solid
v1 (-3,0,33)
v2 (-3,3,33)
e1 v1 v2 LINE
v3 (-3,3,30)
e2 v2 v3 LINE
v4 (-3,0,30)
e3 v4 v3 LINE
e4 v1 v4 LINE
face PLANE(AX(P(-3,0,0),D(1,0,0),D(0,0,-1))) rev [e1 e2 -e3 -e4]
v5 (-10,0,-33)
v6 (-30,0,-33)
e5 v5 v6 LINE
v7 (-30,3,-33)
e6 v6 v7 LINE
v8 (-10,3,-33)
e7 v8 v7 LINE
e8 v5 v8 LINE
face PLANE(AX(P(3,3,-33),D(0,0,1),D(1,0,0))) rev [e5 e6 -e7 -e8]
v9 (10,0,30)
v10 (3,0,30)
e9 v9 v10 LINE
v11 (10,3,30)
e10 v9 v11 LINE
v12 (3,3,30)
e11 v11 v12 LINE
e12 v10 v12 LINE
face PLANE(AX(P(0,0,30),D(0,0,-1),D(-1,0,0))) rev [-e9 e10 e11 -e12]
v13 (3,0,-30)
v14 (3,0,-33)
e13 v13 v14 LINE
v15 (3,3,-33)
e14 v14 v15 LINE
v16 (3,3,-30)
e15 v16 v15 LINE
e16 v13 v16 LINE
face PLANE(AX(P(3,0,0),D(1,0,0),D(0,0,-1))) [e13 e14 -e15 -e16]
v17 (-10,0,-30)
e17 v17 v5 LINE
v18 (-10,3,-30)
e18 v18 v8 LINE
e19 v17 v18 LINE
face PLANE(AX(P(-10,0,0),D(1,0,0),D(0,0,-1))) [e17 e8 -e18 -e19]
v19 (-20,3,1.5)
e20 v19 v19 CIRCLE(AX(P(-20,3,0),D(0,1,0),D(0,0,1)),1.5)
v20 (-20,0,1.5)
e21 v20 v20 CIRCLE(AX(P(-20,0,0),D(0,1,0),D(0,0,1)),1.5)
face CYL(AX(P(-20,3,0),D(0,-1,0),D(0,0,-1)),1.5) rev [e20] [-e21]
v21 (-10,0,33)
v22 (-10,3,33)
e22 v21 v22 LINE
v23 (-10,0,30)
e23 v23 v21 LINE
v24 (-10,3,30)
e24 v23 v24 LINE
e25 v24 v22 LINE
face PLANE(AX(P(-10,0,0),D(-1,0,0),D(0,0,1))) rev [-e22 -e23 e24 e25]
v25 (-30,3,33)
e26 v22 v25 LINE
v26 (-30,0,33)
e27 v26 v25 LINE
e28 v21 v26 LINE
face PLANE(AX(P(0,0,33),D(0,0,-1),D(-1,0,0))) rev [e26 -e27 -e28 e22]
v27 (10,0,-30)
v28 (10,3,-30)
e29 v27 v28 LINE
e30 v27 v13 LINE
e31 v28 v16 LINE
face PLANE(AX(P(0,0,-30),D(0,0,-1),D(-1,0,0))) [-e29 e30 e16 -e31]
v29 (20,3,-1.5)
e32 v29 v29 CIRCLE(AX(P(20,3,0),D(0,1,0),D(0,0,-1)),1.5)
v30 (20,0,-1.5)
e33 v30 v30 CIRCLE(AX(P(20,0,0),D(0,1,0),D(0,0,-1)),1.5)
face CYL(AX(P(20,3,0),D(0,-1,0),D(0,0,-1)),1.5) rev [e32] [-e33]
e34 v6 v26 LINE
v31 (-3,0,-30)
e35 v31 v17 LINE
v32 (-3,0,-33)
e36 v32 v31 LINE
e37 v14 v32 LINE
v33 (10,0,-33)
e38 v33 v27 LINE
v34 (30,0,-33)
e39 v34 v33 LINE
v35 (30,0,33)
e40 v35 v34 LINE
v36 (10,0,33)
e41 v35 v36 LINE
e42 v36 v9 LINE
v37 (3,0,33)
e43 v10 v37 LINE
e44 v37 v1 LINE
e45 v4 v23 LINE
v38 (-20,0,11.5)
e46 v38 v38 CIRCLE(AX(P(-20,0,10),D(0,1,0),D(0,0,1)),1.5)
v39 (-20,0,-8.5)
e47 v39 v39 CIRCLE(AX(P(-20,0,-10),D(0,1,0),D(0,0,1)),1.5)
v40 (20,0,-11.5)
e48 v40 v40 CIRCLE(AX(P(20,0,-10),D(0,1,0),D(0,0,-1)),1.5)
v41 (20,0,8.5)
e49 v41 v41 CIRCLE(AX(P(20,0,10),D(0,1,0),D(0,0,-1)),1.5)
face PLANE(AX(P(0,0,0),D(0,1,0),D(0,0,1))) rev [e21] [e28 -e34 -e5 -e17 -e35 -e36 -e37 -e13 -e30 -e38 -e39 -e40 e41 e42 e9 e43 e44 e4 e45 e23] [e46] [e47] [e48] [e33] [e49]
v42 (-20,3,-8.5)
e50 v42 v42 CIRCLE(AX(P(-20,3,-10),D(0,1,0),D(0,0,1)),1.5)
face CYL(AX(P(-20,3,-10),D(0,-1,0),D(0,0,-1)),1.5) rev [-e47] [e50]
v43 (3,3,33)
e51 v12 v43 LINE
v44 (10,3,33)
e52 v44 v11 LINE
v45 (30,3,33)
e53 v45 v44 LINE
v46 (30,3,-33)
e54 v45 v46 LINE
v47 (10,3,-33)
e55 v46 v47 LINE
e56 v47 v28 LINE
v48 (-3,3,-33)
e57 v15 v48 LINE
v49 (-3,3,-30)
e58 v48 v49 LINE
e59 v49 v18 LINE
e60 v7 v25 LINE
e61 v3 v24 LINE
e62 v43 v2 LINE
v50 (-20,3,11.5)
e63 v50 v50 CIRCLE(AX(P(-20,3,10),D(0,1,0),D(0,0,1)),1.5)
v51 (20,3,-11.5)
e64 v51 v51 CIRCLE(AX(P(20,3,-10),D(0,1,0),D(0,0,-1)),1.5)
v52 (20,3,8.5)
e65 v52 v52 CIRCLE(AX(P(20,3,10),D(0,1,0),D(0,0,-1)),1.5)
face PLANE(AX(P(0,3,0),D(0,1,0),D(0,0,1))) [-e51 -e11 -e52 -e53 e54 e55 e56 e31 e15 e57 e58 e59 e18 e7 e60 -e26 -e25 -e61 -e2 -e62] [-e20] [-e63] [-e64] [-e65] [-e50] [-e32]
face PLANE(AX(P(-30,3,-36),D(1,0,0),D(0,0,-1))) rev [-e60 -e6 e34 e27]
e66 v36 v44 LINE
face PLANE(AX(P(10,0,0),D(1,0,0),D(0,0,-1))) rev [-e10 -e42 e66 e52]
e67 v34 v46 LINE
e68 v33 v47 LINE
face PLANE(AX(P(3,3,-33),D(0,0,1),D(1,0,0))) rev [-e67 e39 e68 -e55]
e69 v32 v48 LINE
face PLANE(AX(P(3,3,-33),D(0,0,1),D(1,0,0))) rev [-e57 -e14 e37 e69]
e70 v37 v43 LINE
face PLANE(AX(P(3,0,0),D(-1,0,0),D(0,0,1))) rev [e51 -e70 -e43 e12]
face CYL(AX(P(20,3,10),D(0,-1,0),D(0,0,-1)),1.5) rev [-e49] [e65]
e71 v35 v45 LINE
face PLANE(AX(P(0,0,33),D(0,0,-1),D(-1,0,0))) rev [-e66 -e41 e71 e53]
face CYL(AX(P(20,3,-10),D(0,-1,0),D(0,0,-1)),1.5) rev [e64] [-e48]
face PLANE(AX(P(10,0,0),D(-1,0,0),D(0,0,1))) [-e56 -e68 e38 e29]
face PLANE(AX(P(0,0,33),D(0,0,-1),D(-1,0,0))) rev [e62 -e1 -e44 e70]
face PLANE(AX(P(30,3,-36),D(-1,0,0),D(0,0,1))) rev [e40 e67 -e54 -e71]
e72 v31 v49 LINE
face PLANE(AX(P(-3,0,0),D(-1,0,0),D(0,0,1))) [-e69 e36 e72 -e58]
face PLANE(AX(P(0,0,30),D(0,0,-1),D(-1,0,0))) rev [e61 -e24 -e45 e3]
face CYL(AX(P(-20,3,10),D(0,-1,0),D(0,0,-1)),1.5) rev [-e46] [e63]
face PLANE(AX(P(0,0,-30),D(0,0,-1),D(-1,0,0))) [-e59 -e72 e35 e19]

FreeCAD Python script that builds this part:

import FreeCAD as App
import Part
import Sketcher
Q = App.Units.Quantity


def add_polygon(sketch, points):
    """Adds a closed chain of lines whose ends are joined by coincident constraints."""
    first, n = sketch.GeometryCount, len(points)
    for a, b in zip(points, points[1:] + points[:1]):
        sketch.addGeometry(Part.LineSegment(App.Vector(*a, 0), App.Vector(*b, 0)), False)
    for i in range(n):
        sketch.addConstraint(Sketcher.Constraint("Coincident", first + i, 2, first + (i + 1) % n, 1))

doc = App.newDocument("Part")
body = doc.addObject("PartDesign::Body", "Body")

# Sketch on XZ plane
sketch1 = body.newObject("Sketcher::SketchObject", "Sketch")
sketch1.AttachmentSupport = (doc.getObject("XZ_Plane"), [""])
sketch1.MapMode = "FlatFace"
add_polygon(sketch1, [(3, -36), (-3, -36), (-3, -33), (-10, -33), (-10, -36), (-30, -36), (-30, 36), (-10, 36), (-10, 33), (-3, 33), (-3, 36), (3, 36), (3, 33), (10, 33), (10, 36), (30, 36), (30, -36), (10, -36), (10, -33), (3, -33)])  # lines 0-19
sketch1.addGeometry(Part.Circle(App.Vector(20, 10, 0), App.Vector(0, 0, 1), 1.5), False)  # 20
sketch1.addGeometry(Part.Circle(App.Vector(-20, 10, 0), App.Vector(0, 0, 1), 1.5), False)  # 21
sketch1.addGeometry(Part.Circle(App.Vector(20, 0, 0), App.Vector(0, 0, 1), 1.5), False)  # 22
sketch1.addGeometry(Part.Circle(App.Vector(20, -10, 0), App.Vector(0, 0, 1), 1.5), False)  # 23
sketch1.addGeometry(Part.Circle(App.Vector(-20, 0, 0), App.Vector(0, 0, 1), 1.5), False)  # 24
sketch1.addGeometry(Part.Circle(App.Vector(-20, -10, 0), App.Vector(0, 0, 1), 1.5), False)  # 25
sketch1.addConstraint([
    Sketcher.Constraint("Horizontal", 0),
    Sketcher.Constraint("Vertical", 1),
    Sketcher.Constraint("Horizontal", 2),
    Sketcher.Constraint("Vertical", 3),
    Sketcher.Constraint("Horizontal", 4),
    Sketcher.Constraint("Vertical", 5),
    Sketcher.Constraint("Horizontal", 6),
    Sketcher.Constraint("Vertical", 7),
    Sketcher.Constraint("Horizontal", 8),
    Sketcher.Constraint("Vertical", 9),
    Sketcher.Constraint("Horizontal", 10),
    Sketcher.Constraint("Vertical", 11),
    Sketcher.Constraint("Horizontal", 12),
    Sketcher.Constraint("Vertical", 13),
    Sketcher.Constraint("Horizontal", 14),
    Sketcher.Constraint("Vertical", 15),
    Sketcher.Constraint("Horizontal", 16),
    Sketcher.Constraint("Vertical", 17),
    Sketcher.Constraint("Horizontal", 18),
    Sketcher.Constraint("Vertical", 19),
    Sketcher.Constraint("Equal", 20, 21),
    Sketcher.Constraint("Equal", 21, 22),
    Sketcher.Constraint("Equal", 22, 23),
    Sketcher.Constraint("Equal", 23, 24),
    Sketcher.Constraint("Equal", 24, 25),
    Sketcher.Constraint("Symmetric", 21, 3, 23, 3, -1, 1),
    Sketcher.Constraint("Symmetric", 22, 3, 24, 3, -1, 1),
    Sketcher.Constraint("Symmetric", 20, 3, 25, 3, -1, 1),
    Sketcher.Constraint("Symmetric", 0, 2, 10, 2, -1, 1),
    Sketcher.Constraint("Symmetric", 2, 2, 12, 2, -1, 1),
    Sketcher.Constraint("Symmetric", 4, 2, 14, 2, -1, 1),
    Sketcher.Constraint("Symmetric", 6, 2, 16, 2, -1, 1),
    Sketcher.Constraint("Symmetric", 8, 2, 18, 2, -1, 1),
    Sketcher.Constraint("Symmetric", 20, 3, 21, 3, -2),
    Sketcher.Constraint("Symmetric", 8, 2, 11, 2, -2),
    Sketcher.Constraint("Symmetric", 6, 2, 13, 2, -2),
    Sketcher.Constraint("PointOnObject", 22, 3, -1),
    Sketcher.Constraint("Horizontal", 0, 2, 3, 2),
    Sketcher.Constraint("Vertical", 20, 3, 22, 3),
    Sketcher.Constraint("Diameter", 20, Q("3 mm")),
    Sketcher.Constraint("DistanceX", 0, 2, 0, 1, Q("6 mm")),
    Sketcher.Constraint("DistanceX", 2, 2, 2, 1, Q("7 mm")),
    Sketcher.Constraint("DistanceX", 4, 2, 4, 1, Q("20 mm")),
    Sketcher.Constraint("DistanceY", 1, 1, 1, 2, Q("3 mm")),
    Sketcher.Constraint("DistanceY", 5, 1, 5, 2, Q("72 mm")),
    Sketcher.Constraint("DistanceX", -1, 1, 20, 3, Q("20 mm")),
    Sketcher.Constraint("DistanceY", -1, 1, 20, 3, Q("10 mm")),
])
pad1 = body.newObject("PartDesign::Pad", "Pad")
pad1.Profile = sketch1
pad1.Length = 3
pad1.Reversed = True

# Sketch on XZ plane
sketch2 = body.newObject("Sketcher::SketchObject", "Sketch001")
sketch2.AttachmentSupport = (doc.getObject("XZ_Plane"), [""])
sketch2.MapMode = "FlatFace"
sketch2.AttachmentOffset = App.Placement(App.Vector(0, 0, -3), App.Rotation())
add_polygon(sketch2, [(-30, 51.145268), (30, 51.145268), (30, 33), (10, 33), (10, 30), (3, 30), (3, 33), (-3, 33), (-3, 30), (-10, 30), (-10, 33), (-30, 33)])  # lines 0-11
add_polygon(sketch2, [(-30, -36), (-30, -33), (-10, -33), (-10, -36)])  # lines 12-15
add_polygon(sketch2, [(-10, -33), (-10, -30), (-3, -30), (-3, -33)])  # lines 16-19
add_polygon(sketch2, [(-3, -36), (-3, -33), (3, -33), (3, -36)])  # lines 20-23
add_polygon(sketch2, [(3, -33), (3, -30), (10, -30), (10, -33)])  # lines 24-27
add_polygon(sketch2, [(10, -36), (10, -33), (30, -33), (30, -36)])  # lines 28-31
sketch2.addConstraint([
    Sketcher.Constraint("Horizontal", 0),
    Sketcher.Constraint("Vertical", 1),
    Sketcher.Constraint("Horizontal", 2),
    Sketcher.Constraint("Vertical", 3),
    Sketcher.Constraint("Horizontal", 4),
    Sketcher.Constraint("Vertical", 5),
    Sketcher.Constraint("Horizontal", 6),
    Sketcher.Constraint("Vertical", 7),
    Sketcher.Constraint("Horizontal", 8),
    Sketcher.Constraint("Vertical", 9),
    Sketcher.Constraint("Horizontal", 10),
    Sketcher.Constraint("Vertical", 11),
    Sketcher.Constraint("Vertical", 12),
    Sketcher.Constraint("Horizontal", 13),
    Sketcher.Constraint("Vertical", 14),
    Sketcher.Constraint("Horizontal", 15),
    Sketcher.Constraint("Vertical", 16),
    Sketcher.Constraint("Horizontal", 17),
    Sketcher.Constraint("Vertical", 18),
    Sketcher.Constraint("Horizontal", 19),
    Sketcher.Constraint("Vertical", 20),
    Sketcher.Constraint("Horizontal", 21),
    Sketcher.Constraint("Vertical", 22),
    Sketcher.Constraint("Horizontal", 23),
    Sketcher.Constraint("Vertical", 24),
    Sketcher.Constraint("Horizontal", 25),
    Sketcher.Constraint("Vertical", 26),
    Sketcher.Constraint("Horizontal", 27),
    Sketcher.Constraint("Vertical", 28),
    Sketcher.Constraint("Horizontal", 29),
    Sketcher.Constraint("Vertical", 30),
    Sketcher.Constraint("Horizontal", 31),
    Sketcher.Constraint("Coincident", 19, 2, 13, 2),
    Sketcher.Constraint("Coincident", 20, 2, 18, 2),
    Sketcher.Constraint("Coincident", 27, 2, 21, 2),
    Sketcher.Constraint("Coincident", 28, 2, 26, 2),
    Sketcher.Constraint("Symmetric", 1, 2, 12, 2, -1, 1),
    Sketcher.Constraint("Symmetric", 3, 2, 16, 2, -1, 1),
    Sketcher.Constraint("Symmetric", 5, 2, 18, 2, -1, 1),
    Sketcher.Constraint("Symmetric", 7, 2, 24, 2, -1, 1),
    Sketcher.Constraint("Symmetric", 9, 2, 26, 2, -1, 1),
    Sketcher.Constraint("Symmetric", 4, 2, 7, 2, -2),
    Sketcher.Constraint("Symmetric", 15, 2, 30, 2, -2),
    Sketcher.Constraint("Horizontal", 15, 2, 22, 2),
    Sketcher.Constraint("Vertical", 11, 2, 12, 2),
    Sketcher.Constraint("Vertical", 9, 2, 13, 2),
    Sketcher.Constraint("Equal", 9, 12),
    Sketcher.Constraint("DistanceX", 0, 1, 0, 2, Q("60 mm")),
    Sketcher.Constraint("DistanceX", 2, 2, 2, 1, Q("20 mm")),
    Sketcher.Constraint("DistanceX", 4, 2, 4, 1, Q("7 mm")),
    Sketcher.Constraint("DistanceY", 3, 2, 3, 1, Q("3 mm")),
    Sketcher.Constraint("DistanceY", -1, 1, 1, 2, Q("33 mm")),
    Sketcher.Constraint("DistanceY", 1, 2, 1, 1, Q("18.145268 mm")),
])
pocket1 = body.newObject("PartDesign::Pocket", "Pocket")
pocket1.Profile = sketch2
pocket1.Length = 3
pocket1.Reversed = True

doc.recompute()
